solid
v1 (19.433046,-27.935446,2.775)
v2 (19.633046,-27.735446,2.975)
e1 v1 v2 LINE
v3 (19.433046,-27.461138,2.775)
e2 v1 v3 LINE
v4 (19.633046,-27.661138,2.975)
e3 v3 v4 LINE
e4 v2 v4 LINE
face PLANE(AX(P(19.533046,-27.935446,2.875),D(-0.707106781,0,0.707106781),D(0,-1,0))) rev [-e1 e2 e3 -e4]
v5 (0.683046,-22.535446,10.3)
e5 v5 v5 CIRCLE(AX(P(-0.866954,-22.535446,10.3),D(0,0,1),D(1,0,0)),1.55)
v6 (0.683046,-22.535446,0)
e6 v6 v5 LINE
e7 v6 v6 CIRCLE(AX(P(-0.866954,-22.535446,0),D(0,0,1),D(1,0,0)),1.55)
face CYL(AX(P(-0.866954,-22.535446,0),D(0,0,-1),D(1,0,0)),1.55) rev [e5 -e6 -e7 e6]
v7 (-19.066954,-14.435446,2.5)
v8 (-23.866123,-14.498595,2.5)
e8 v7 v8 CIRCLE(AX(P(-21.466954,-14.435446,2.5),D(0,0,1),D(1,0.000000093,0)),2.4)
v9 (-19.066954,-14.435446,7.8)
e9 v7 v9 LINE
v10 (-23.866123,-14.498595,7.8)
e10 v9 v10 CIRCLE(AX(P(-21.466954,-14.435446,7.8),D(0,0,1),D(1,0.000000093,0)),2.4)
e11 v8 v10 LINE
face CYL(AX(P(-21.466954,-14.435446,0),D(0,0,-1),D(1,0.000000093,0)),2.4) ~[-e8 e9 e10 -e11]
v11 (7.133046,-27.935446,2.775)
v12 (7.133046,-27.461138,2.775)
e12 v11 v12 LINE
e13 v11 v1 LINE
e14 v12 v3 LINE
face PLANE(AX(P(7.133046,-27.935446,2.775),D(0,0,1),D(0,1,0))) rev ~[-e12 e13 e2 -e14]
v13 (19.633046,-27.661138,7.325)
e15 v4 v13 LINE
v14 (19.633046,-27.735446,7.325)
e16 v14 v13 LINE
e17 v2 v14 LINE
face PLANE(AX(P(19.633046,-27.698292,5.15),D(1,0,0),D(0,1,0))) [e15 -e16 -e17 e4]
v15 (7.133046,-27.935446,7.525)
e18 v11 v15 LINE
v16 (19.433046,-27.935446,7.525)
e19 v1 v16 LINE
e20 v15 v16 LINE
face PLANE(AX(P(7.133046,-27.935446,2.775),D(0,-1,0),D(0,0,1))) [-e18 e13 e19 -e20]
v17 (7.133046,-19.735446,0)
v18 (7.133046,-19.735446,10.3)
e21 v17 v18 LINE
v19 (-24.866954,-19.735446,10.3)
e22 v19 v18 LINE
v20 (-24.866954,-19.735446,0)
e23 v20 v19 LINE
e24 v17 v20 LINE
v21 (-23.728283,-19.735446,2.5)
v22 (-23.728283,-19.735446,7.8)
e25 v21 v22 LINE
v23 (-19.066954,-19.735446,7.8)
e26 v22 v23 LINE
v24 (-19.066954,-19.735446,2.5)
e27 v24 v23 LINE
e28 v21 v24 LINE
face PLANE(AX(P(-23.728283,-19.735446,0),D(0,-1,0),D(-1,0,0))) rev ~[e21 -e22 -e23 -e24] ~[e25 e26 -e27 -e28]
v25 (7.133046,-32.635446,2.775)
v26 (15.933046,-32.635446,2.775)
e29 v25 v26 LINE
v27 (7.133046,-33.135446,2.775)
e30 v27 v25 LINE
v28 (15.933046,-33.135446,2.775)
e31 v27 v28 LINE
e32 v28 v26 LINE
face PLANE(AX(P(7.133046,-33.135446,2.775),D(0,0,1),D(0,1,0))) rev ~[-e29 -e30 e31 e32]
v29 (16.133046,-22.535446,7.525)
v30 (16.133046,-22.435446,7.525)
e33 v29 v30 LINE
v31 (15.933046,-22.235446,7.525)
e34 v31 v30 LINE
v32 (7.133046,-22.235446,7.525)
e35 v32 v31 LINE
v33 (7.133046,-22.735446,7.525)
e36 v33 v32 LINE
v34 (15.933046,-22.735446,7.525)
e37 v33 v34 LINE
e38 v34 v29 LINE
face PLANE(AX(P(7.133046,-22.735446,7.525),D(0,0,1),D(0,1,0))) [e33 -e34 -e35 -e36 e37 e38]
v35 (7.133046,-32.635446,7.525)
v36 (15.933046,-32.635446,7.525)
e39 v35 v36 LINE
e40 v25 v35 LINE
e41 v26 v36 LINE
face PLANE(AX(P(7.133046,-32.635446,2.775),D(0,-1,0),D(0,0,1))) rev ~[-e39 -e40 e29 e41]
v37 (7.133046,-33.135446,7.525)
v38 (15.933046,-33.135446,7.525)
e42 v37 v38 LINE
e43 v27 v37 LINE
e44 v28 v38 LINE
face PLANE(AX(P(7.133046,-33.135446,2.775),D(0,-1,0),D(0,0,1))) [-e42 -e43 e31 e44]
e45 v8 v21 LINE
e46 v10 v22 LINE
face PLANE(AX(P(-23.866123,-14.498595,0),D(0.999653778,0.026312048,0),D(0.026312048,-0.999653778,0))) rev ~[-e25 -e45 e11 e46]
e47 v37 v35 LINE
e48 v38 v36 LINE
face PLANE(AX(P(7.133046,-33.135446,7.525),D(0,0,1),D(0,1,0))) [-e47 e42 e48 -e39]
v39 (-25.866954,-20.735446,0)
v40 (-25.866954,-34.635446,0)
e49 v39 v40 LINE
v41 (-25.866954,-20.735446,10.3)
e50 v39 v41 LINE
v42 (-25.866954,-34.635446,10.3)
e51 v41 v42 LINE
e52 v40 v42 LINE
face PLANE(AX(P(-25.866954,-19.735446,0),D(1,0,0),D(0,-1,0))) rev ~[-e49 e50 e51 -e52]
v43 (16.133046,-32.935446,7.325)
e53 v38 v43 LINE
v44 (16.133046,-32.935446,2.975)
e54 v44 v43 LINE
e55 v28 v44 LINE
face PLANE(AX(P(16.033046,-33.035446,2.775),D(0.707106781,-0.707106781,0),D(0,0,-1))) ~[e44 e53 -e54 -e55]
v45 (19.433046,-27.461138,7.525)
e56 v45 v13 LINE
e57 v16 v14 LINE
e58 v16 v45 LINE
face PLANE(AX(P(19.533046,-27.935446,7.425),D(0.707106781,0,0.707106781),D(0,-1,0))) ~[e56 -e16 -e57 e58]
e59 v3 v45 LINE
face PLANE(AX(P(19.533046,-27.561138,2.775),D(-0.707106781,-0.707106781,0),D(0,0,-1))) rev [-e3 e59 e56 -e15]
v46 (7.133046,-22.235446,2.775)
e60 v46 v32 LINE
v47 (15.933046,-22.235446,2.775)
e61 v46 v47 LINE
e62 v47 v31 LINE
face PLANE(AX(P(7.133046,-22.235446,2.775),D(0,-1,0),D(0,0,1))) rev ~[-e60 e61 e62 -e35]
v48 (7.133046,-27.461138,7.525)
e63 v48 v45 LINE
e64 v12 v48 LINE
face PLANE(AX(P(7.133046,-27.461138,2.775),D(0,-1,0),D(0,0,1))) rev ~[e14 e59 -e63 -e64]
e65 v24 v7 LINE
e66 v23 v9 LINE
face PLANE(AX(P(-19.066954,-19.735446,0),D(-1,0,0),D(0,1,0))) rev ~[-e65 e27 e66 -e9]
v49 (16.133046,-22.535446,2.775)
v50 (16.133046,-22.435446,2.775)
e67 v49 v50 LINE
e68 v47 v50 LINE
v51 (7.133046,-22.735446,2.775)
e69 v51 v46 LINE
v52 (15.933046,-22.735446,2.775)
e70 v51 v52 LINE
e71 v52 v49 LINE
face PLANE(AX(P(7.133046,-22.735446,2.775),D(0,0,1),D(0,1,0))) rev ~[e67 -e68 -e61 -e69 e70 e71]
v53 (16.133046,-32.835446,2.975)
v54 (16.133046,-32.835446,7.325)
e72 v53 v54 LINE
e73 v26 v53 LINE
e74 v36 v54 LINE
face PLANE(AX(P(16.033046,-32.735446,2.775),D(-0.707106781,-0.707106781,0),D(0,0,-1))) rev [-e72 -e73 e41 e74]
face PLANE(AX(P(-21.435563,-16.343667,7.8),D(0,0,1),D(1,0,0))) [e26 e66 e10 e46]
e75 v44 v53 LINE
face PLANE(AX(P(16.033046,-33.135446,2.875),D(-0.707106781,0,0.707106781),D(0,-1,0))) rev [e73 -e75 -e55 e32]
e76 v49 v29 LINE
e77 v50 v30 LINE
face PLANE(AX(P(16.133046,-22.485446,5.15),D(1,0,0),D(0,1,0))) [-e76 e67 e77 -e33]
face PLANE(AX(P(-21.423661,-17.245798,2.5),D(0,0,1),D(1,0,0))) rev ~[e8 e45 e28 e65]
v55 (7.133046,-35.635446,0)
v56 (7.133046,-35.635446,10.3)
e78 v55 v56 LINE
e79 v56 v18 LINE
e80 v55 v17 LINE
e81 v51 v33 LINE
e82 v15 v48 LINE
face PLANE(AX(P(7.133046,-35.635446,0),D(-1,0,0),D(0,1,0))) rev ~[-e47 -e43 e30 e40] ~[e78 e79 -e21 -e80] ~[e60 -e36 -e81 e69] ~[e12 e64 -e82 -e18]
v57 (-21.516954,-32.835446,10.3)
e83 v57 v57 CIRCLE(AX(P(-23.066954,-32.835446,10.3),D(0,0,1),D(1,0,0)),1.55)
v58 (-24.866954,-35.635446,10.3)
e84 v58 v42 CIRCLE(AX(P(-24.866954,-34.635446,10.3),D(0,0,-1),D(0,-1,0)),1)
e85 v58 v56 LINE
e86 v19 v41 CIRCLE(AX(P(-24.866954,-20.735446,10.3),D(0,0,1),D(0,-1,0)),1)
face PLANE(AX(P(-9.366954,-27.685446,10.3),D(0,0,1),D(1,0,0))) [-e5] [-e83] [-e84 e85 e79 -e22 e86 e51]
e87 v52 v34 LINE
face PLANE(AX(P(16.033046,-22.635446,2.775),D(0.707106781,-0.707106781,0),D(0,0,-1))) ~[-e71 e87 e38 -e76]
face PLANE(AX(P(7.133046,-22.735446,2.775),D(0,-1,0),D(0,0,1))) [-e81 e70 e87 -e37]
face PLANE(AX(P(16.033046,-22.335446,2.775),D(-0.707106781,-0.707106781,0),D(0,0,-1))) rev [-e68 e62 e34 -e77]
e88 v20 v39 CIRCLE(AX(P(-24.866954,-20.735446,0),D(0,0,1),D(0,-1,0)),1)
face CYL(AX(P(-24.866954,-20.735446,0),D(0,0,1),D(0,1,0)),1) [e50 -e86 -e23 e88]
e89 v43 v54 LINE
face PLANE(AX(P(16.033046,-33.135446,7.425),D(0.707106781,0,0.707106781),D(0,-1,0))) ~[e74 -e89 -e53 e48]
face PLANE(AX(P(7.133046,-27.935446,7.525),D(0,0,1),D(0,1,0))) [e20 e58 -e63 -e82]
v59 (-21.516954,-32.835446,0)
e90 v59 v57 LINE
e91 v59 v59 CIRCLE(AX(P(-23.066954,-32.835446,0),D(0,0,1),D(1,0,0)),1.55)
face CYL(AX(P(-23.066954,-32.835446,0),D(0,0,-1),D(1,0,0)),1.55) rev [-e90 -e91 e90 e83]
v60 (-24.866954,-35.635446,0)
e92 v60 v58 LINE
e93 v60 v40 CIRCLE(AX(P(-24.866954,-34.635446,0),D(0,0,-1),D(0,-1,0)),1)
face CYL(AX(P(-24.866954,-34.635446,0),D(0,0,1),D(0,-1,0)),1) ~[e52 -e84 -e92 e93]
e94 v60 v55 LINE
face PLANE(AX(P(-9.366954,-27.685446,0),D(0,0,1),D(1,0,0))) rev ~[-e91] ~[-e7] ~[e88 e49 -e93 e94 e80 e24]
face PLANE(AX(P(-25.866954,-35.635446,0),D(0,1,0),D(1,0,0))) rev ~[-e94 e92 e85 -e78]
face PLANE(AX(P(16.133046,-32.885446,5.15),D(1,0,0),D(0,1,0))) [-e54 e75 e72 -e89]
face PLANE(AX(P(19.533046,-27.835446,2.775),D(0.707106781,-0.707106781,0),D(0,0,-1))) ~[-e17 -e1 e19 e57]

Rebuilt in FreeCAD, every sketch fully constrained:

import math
import FreeCAD as App
import Part
import Sketcher
from FreeCAD import Vector


def edges_at(feature, points):
    """Names of the edges that pass closest to the given points."""
    edges = feature.Shape.Edges
    near = lambda p: min(range(len(edges)), key=lambda i: edges[i].distToShape(Part.Vertex(*p))[0])
    return sorted({f"Edge{near(p) + 1}" for p in points})


def add_polygon(sketch, points):
    """Adds a closed chain of lines whose ends are joined by coincident constraints."""
    first, n = sketch.GeometryCount, len(points)
    for a, b in zip(points, points[1:] + points[:1]):
        sketch.addGeometry(Part.LineSegment(App.Vector(*a, 0), App.Vector(*b, 0)), False)
    for i in range(n):
        sketch.addConstraint(Sketcher.Constraint("Coincident", first + i, 2, first + (i + 1) % n, 1))

doc = App.newDocument("Part")
body = doc.addObject("PartDesign::Body", "Body")

# Sketch on XY plane
sketch1 = body.newObject("Sketcher::SketchObject", "Sketch")
sketch1.AttachmentSupport = (doc.getObject("XY_Plane"), [""])
sketch1.MapMode = "FlatFace"
sketch1.addGeometry([
    Part.LineSegment(Vector(-25.9, -19.7, 0), Vector(-25.9, -35.6, 0)),  # 0
    Part.LineSegment(Vector(-25.9, -35.6, 0), Vector(7.1, -35.6, 0)),  # 1
    Part.LineSegment(Vector(7.1, -35.6, 0), Vector(7.1, -19.7, 0)),  # 2
    Part.LineSegment(Vector(7.1, -19.7, 0), Vector(-19.1, -19.7, 0)),  # 3
    Part.LineSegment(Vector(-19.1, -19.7, 0), Vector(-19.1, -14.4, 0)),  # 4
    Part.ArcOfCircle(Part.Circle(Vector(-21.5, -14.4, 0), Vector(0, 0, 1), 2.4), math.radians(0), math.radians(182)),  # 5
    Part.LineSegment(Vector(-23.9, -14.5, 0), Vector(-23.7, -19.7, 0)),  # 6
    Part.LineSegment(Vector(-23.7, -19.7, 0), Vector(-25.9, -19.7, 0)),  # 7
    Part.Circle(Vector(-23.1, -32.8, 0), Vector(0, 0, 1), 1.6),  # 8
    Part.Circle(Vector(-0.9, -22.5, 0), Vector(0, 0, 1), 1.6),  # 9
], False)
sketch1.addConstraint([
    Sketcher.Constraint("Coincident", 0, 2, 1, 1),
    Sketcher.Constraint("Coincident", 1, 2, 2, 1),
    Sketcher.Constraint("Coincident", 2, 2, 3, 1),
    Sketcher.Constraint("Coincident", 3, 2, 4, 1),
    Sketcher.Constraint("Tangent", 4, 2, 5, 1),
    Sketcher.Constraint("Tangent", 5, 2, 6, 1),
    Sketcher.Constraint("Coincident", 6, 2, 7, 1),
    Sketcher.Constraint("Coincident", 7, 2, 0, 1),
    Sketcher.Constraint("Vertical", 0),
    Sketcher.Constraint("Horizontal", 1),
    Sketcher.Constraint("Vertical", 2),
    Sketcher.Constraint("Horizontal", 3),
    Sketcher.Constraint("Vertical", 4),
    Sketcher.Constraint("Horizontal", 7),
    Sketcher.Constraint("Equal", 8, 9),
    Sketcher.Constraint("Horizontal", 3, 2, 6, 2),
    Sketcher.Constraint("Diameter", 8, 3.1),
    Sketcher.Constraint("Radius", 5, 2.4),
    Sketcher.Constraint("DistanceX", 1, 1, 1, 2, 33.0),
    Sketcher.Constraint("DistanceX", 3, 2, 3, 1, 26.2),
    Sketcher.Constraint("DistanceY", 0, 2, 0, 1, 15.9),
    Sketcher.Constraint("DistanceY", 4, 1, 4, 2, 5.3),
    Sketcher.Constraint("DistanceX", 0, 2, 9, 3, 25.0),
    Sketcher.Constraint("DistanceX", 8, 3, 3, 2, 4.0),
    Sketcher.Constraint("DistanceY", 8, 3, 5, 3, 18.4),
    Sketcher.Constraint("DistanceY", 9, 3, 5, 3, 8.1),
    Sketcher.Constraint("DistanceX", 7, 2, 7, 1, 2.138671),
    Sketcher.Constraint("DistanceX", 5, 3, -1, 1, 21.466954),
    Sketcher.Constraint("DistanceY", 5, 3, -1, 1, 14.435446),
])
pad1 = body.newObject("PartDesign::Pad", "Pad")
pad1.Profile = sketch1
pad1.Length = 10.3

# Sketch on XY plane
sketch2 = body.newObject("Sketcher::SketchObject", "Sketch001")
sketch2.AttachmentSupport = (doc.getObject("XY_Plane"), [""])
sketch2.MapMode = "FlatFace"
sketch2.AttachmentOffset = App.Placement(Vector(0, 0, 10.3), App.Rotation())
sketch2.addGeometry([
    Part.LineSegment(Vector(-23.9, -14.5, 0), Vector(-23.7, -19.7, 0)),
    Part.LineSegment(Vector(-23.7, -19.7, 0), Vector(-19.1, -19.7, 0)),
    Part.LineSegment(Vector(-19.1, -19.7, 0), Vector(-19.1, -14.4, 0)),
    Part.ArcOfCircle(Part.Circle(Vector(-21.5, -14.4, 0), Vector(0, 0, 1), 2.4), math.radians(0), math.radians(182)),
], False)
sketch2.addConstraint([
    Sketcher.Constraint("Coincident", 0, 2, 1, 1),
    Sketcher.Constraint("Coincident", 1, 2, 2, 1),
    Sketcher.Constraint("Tangent", 2, 2, 3, 1),
    Sketcher.Constraint("Tangent", 3, 2, 0, 1),
    Sketcher.Constraint("Horizontal", 1),
    Sketcher.Constraint("Vertical", 2),
    Sketcher.Constraint("Radius", 3, 2.4),
    Sketcher.Constraint("DistanceY", 2, 1, 2, 2, 5.3),
    Sketcher.Constraint("DistanceX", 1, 1, 1, 2, 4.661329),
    Sketcher.Constraint("DistanceX", 3, 3, -1, 1, 21.466954),
    Sketcher.Constraint("DistanceY", 3, 3, -1, 1, 14.435446),
])
pocket1 = body.newObject("PartDesign::Pocket", "Pocket")
pocket1.Profile = sketch2
pocket1.Length = 2.5

# Sketch on XY plane
sketch3 = body.newObject("Sketcher::SketchObject", "Sketch002")
sketch3.AttachmentSupport = (doc.getObject("XY_Plane"), [""])
sketch3.MapMode = "FlatFace"
sketch3.addGeometry([
    Part.LineSegment(Vector(-23.9, -14.5, 0), Vector(-23.7, -19.7, 0)),
    Part.LineSegment(Vector(-23.7, -19.7, 0), Vector(-19.1, -19.7, 0)),
    Part.LineSegment(Vector(-19.1, -19.7, 0), Vector(-19.1, -14.4, 0)),
    Part.ArcOfCircle(Part.Circle(Vector(-21.5, -14.4, 0), Vector(0, 0, 1), 2.4), math.radians(0), math.radians(182)),
], False)
sketch3.addConstraint([
    Sketcher.Constraint("Coincident", 0, 2, 1, 1),
    Sketcher.Constraint("Coincident", 1, 2, 2, 1),
    Sketcher.Constraint("Tangent", 2, 2, 3, 1),
    Sketcher.Constraint("Tangent", 3, 2, 0, 1),
    Sketcher.Constraint("Horizontal", 1),
    Sketcher.Constraint("Vertical", 2),
    Sketcher.Constraint("Radius", 3, 2.4),
    Sketcher.Constraint("DistanceY", 2, 1, 2, 2, 5.3),
    Sketcher.Constraint("DistanceX", 1, 1, 1, 2, 4.661329),
    Sketcher.Constraint("DistanceX", 3, 3, -1, 1, 21.466954),
    Sketcher.Constraint("DistanceY", 3, 3, -1, 1, 14.435446),
])
pocket2 = body.newObject("PartDesign::Pocket", "Pocket001")
pocket2.Profile = sketch3
pocket2.Length = 2.5
pocket2.Reversed = True

# Sketch on YZ plane
sketch4 = body.newObject("Sketcher::SketchObject", "Sketch003")
sketch4.AttachmentSupport = (doc.getObject("YZ_Plane"), [""])
sketch4.MapMode = "FlatFace"
sketch4.AttachmentOffset = App.Placement(Vector(0, 0, 7.133046), App.Rotation())
add_polygon(sketch4, [(-22.7, 7.5), (-22.7, 2.8), (-22.2, 2.8), (-22.2, 7.5)])  # lines 0-3
add_polygon(sketch4, [(-33.1, 7.5), (-33.1, 2.8), (-32.6, 2.8), (-32.6, 7.5)])  # lines 4-7
sketch4.addConstraint([
    Sketcher.Constraint("Vertical", 0),
    Sketcher.Constraint("Horizontal", 1),
    Sketcher.Constraint("Vertical", 2),
    Sketcher.Constraint("Horizontal", 3),
    Sketcher.Constraint("Vertical", 4),
    Sketcher.Constraint("Horizontal", 5),
    Sketcher.Constraint("Vertical", 6),
    Sketcher.Constraint("Horizontal", 7),
    Sketcher.Constraint("Horizontal", 1, 2, 4, 2),
    Sketcher.Constraint("Horizontal", 3, 2, 6, 2),
    Sketcher.Constraint("Equal", 3, 5),
    Sketcher.Constraint("DistanceX", 1, 1, 1, 2, 0.5),
    Sketcher.Constraint("DistanceY", 0, 2, 0, 1, 4.75),
    Sketcher.Constraint("DistanceX", 4, 2, 0, 2, 10.4),
    Sketcher.Constraint("DistanceY", -1, 1, 0, 2, 2.775),
    Sketcher.Constraint("DistanceX", 0, 2, -1, 1, 22.735446),
])
pad2 = body.newObject("PartDesign::Pad", "Pad001")
pad2.Profile = sketch4
pad2.Length = 9

# Sketch on YZ plane
sketch5 = body.newObject("Sketcher::SketchObject", "Sketch004")
sketch5.AttachmentSupport = (doc.getObject("YZ_Plane"), [""])
sketch5.MapMode = "FlatFace"
sketch5.AttachmentOffset = App.Placement(Vector(0, 0, 7.133046), App.Rotation())
add_polygon(sketch5, [(-27.94, 7.53), (-27.94, 2.77), (-27.46, 2.77), (-27.46, 7.53)])  # lines 0-3
sketch5.addConstraint([
    Sketcher.Constraint("Vertical", 0),
    Sketcher.Constraint("Horizontal", 1),
    Sketcher.Constraint("Vertical", 2),
    Sketcher.Constraint("Horizontal", 3),
    Sketcher.Constraint("DistanceY", 0, 2, 0, 1, 4.75),
    Sketcher.Constraint("DistanceY", -1, 1, 0, 2, 2.775),
    Sketcher.Constraint("DistanceX", 1, 1, 1, 2, 0.474308),
    Sketcher.Constraint("DistanceX", 0, 2, -1, 1, 27.935446),
])
pad3 = body.newObject("PartDesign::Pad", "Pad002")
pad3.Profile = sketch5
pad3.Length = 12.5
doc.recompute()

chamfer = body.newObject("PartDesign::Chamfer", "Chamfer")
chamfer.Base = (pad3, edges_at(pad3, [
    (16.133, -22.235, 5.15),
    (16.133, -22.735, 5.15),
    (19.633, -27.461, 5.15),
    (19.633, -27.698, 7.525),
    (19.633, -27.935, 5.15),
    (19.633, -27.698, 2.775),
    (16.133, -32.635, 5.15),
    (16.133, -32.885, 7.525),
    (16.133, -33.135, 5.15),
    (16.133, -32.885, 2.775),
]))
chamfer.Size = 0.2
doc.recompute()

fillet = body.newObject("PartDesign::Fillet", "Fillet")
fillet.Base = (chamfer, edges_at(chamfer, [(-25.867, -19.735, 5.15), (-25.867, -35.635, 5.15)]))
fillet.Radius = 1

doc.recompute()
